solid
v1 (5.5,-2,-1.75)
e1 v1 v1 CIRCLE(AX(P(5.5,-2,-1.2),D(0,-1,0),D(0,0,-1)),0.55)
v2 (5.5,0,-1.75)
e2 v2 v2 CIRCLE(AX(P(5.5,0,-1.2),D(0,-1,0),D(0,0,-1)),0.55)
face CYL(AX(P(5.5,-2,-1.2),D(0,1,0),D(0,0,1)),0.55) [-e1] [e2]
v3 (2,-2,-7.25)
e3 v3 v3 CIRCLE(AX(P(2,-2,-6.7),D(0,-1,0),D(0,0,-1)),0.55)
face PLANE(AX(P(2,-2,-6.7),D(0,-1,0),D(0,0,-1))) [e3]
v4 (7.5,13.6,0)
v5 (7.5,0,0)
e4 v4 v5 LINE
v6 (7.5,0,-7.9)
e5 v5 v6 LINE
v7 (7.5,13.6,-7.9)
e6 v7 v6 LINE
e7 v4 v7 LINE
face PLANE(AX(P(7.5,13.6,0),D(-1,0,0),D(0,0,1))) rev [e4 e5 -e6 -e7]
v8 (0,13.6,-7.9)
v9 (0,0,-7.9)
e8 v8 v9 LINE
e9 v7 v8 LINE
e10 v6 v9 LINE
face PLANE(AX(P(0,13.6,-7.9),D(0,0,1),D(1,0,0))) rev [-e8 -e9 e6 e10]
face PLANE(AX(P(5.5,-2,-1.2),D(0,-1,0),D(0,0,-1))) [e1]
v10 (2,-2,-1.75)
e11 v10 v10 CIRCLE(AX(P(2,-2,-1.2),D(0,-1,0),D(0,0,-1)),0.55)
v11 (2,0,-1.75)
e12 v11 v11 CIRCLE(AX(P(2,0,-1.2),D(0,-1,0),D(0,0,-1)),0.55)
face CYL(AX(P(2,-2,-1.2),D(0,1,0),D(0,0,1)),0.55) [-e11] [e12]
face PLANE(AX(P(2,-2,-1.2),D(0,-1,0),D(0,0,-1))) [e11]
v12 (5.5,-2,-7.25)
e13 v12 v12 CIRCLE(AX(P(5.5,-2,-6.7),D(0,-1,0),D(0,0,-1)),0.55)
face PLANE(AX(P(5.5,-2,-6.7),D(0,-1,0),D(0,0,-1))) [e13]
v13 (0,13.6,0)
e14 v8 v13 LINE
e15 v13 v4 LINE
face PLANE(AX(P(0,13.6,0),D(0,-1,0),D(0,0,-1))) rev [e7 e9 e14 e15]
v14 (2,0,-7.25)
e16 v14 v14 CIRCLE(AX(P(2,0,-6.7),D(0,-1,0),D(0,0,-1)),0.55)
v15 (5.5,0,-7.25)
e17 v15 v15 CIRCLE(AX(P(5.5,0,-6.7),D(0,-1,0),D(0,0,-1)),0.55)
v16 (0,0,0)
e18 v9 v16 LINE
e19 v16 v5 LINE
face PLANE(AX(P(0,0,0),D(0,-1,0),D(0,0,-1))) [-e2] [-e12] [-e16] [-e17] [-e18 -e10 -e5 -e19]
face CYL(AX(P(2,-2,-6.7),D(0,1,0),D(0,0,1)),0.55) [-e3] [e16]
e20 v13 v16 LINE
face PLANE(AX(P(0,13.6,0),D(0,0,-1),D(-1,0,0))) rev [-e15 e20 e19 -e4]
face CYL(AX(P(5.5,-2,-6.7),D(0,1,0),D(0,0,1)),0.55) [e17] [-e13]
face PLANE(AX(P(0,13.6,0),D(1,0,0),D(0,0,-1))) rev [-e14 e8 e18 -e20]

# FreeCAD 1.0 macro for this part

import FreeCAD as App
import Part
import Sketcher
from FreeCAD import Vector


def add_polygon(sketch, points):
    """Adds a closed chain of lines whose ends are joined by coincident constraints."""
    first, n = sketch.GeometryCount, len(points)
    for a, b in zip(points, points[1:] + points[:1]):
        sketch.addGeometry(Part.LineSegment(App.Vector(*a, 0), App.Vector(*b, 0)), False)
    for i in range(n):
        sketch.addConstraint(Sketcher.Constraint("Coincident", first + i, 2, first + (i + 1) % n, 1))

doc = App.newDocument("Part")
params = doc.addObject("Spreadsheet::Sheet", "Params")
for row, (alias, value) in enumerate([
    ("sketch1_width", "7.5 mm"),
    ("sketch1_height", "7.9 mm"),
    ("pad1_length", "13.6 mm"),
    ("sketch2_diameter", "1.1 mm"),
    ("pad2_length", "2 mm"),
], start=1):
    params.set(f"A{row}", alias)
    params.set(f"B{row}", "=" + value)
    params.setAlias(f"B{row}", alias)

body = doc.addObject("PartDesign::Body", "Body")

# Sketch on XZ plane
sketch1 = doc.addObject("Sketcher::SketchObject", "Sketch")
body.addObject(sketch1)
sketch1.AttachmentSupport = (doc.XZ_Plane, [""])
sketch1.MapMode = "FlatFace"
add_polygon(sketch1, [(0, -8), (0, 0), (8, 0), (8, -8)])  # lines 0-3
sketch1.addConstraint([
    Sketcher.Constraint("Vertical", 0),
    Sketcher.Constraint("Horizontal", 1),
    Sketcher.Constraint("Vertical", 2),
    Sketcher.Constraint("Horizontal", 3),
    Sketcher.Constraint("Coincident", 0, 2, -1, 1),
    Sketcher.Constraint("DistanceX", 1, 1, 1, 2, 7.5),
    Sketcher.Constraint("DistanceY", 0, 1, 0, 2, 7.9),
])
sketch1.setExpression("Constraints[9]", "Params.sketch1_width")
sketch1.setExpression("Constraints[10]", "Params.sketch1_height")
pad1 = doc.addObject("PartDesign::Pad", "Pad")
body.addObject(pad1)
pad1.Profile = sketch1
pad1.setExpression("Length", "Params.pad1_length")
pad1.Reversed = True

# Sketch on XZ plane
sketch2 = doc.addObject("Sketcher::SketchObject", "Sketch001")
body.addObject(sketch2)
sketch2.AttachmentSupport = (doc.XZ_Plane, [""])
sketch2.MapMode = "FlatFace"
sketch2.addGeometry([
    Part.Circle(Vector(2, -1.2, 0), Vector(0, 0, 1), 0.6),
    Part.Circle(Vector(2, -6.7, 0), Vector(0, 0, 1), 0.6),
    Part.Circle(Vector(5.5, -1.2, 0), Vector(0, 0, 1), 0.6),
    Part.Circle(Vector(5.5, -6.7, 0), Vector(0, 0, 1), 0.6),
], False)
sketch2.addConstraint([
    Sketcher.Constraint("Equal", 0, 1),
    Sketcher.Constraint("Equal", 1, 2),
    Sketcher.Constraint("Equal", 2, 3),
    Sketcher.Constraint("Horizontal", 0, 3, 2, 3),
    Sketcher.Constraint("Horizontal", 1, 3, 3, 3),
    Sketcher.Constraint("Vertical", 0, 3, 1, 3),
    Sketcher.Constraint("Vertical", 2, 3, 3, 3),
    Sketcher.Constraint("Diameter", 0, 1.1),
    Sketcher.Constraint("DistanceX", -1, 1, 0, 3, 2.0),
    Sketcher.Constraint("DistanceY", 0, 3, -1, 1, 1.2),
    Sketcher.Constraint("DistanceY", 1, 3, -1, 1, 6.7),
    Sketcher.Constraint("DistanceX", -1, 1, 2, 3, 5.5),
])
sketch2.setExpression("Constraints[7]", "Params.sketch2_diameter")
pad2 = doc.addObject("PartDesign::Pad", "Pad001")
body.addObject(pad2)
pad2.Profile = sketch2
pad2.setExpression("Length", "Params.pad2_length")

doc.recompute()
